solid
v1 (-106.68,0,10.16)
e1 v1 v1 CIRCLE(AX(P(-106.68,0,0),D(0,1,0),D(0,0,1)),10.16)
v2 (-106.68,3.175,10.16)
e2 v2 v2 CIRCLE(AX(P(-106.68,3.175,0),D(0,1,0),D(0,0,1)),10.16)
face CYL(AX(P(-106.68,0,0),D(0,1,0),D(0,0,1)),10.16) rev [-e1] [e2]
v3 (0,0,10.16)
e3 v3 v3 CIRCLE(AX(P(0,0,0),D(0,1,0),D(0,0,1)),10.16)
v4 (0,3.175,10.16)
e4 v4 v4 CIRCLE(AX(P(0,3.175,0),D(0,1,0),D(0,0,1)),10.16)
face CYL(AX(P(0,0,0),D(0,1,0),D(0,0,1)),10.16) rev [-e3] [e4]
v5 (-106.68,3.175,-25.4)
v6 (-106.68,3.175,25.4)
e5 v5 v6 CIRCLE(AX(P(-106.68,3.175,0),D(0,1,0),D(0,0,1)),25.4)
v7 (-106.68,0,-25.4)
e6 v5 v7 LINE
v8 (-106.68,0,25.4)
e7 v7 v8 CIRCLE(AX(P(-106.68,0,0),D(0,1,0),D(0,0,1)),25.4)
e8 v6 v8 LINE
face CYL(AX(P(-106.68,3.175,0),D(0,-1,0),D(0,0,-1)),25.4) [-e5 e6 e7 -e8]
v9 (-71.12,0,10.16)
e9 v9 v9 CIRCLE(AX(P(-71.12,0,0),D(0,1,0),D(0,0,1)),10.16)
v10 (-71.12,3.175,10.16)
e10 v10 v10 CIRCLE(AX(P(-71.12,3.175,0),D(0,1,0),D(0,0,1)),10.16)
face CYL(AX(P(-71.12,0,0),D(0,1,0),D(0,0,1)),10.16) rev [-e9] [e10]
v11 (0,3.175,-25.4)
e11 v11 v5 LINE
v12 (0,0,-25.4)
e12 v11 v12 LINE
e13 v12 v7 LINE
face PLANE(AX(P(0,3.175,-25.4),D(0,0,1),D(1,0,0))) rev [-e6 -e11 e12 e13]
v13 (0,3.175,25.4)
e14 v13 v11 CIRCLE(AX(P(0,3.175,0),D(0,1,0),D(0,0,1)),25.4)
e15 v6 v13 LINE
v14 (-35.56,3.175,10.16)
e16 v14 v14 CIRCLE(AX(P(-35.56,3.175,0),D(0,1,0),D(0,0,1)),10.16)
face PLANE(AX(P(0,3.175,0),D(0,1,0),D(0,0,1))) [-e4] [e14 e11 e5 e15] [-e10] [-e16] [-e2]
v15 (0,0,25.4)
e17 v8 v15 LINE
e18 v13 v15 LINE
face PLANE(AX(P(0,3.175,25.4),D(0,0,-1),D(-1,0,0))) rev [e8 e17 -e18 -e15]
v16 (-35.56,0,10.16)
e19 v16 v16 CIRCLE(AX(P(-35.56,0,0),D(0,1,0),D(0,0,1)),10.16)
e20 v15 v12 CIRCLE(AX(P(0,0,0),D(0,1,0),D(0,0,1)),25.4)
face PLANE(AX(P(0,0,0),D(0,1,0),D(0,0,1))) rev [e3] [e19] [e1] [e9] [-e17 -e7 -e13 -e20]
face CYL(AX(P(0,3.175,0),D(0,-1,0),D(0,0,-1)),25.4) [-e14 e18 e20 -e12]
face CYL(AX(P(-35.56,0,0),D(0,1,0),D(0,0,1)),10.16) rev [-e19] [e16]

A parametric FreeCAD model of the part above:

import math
import FreeCAD as App
import Part
import Sketcher
Q = App.Units.Quantity

doc = App.newDocument("Part")
body = doc.addObject("PartDesign::Body", "Body")

# Sketch on XZ plane
sketch1 = doc.addObject("Sketcher::SketchObject", "Sketch")
body.addObject(sketch1)
sketch1.AttachmentSupport = (doc.XZ_Plane, [""])
sketch1.MapMode = "FlatFace"
sketch1.addGeometry(Part.LineSegment(App.Vector(0, -25, 0), App.Vector(-107, -25, 0)), False)
sketch1.addGeometry(Part.ArcOfCircle(Part.Circle(App.Vector(-107, 0, 0), App.Vector(0, 0, 1), 25), math.radians(90), math.radians(270)), False)
sketch1.addGeometry(Part.LineSegment(App.Vector(-107, 25, 0), App.Vector(0, 25, 0)), False)
sketch1.addGeometry(Part.ArcOfCircle(Part.Circle(App.Vector(0, 0, 0), App.Vector(0, 0, 1), 25), math.radians(-90), math.radians(90)), False)
sketch1.addConstraint(Sketcher.Constraint("Tangent", 0, 2, 1, 2))
sketch1.addConstraint(Sketcher.Constraint("Tangent", 1, 1, 2, 1))
sketch1.addConstraint(Sketcher.Constraint("Tangent", 2, 2, 3, 2))
sketch1.addConstraint(Sketcher.Constraint("Tangent", 3, 1, 0, 1))
sketch1.addConstraint(Sketcher.Constraint("Horizontal", 0))
sketch1.addConstraint(Sketcher.Constraint("Horizontal", 2))
sketch1.addConstraint(Sketcher.Constraint("Coincident", 3, 3, -1, 1))
sketch1.addConstraint(Sketcher.Constraint("Radius", 1, Q("1 in")))
sketch1.addConstraint(Sketcher.Constraint("DistanceX", 0, 2, 0, 1, Q("4.2 in")))
pad1 = doc.addObject("PartDesign::Pad", "Pad")
body.addObject(pad1)
pad1.Profile = sketch1
pad1.Length = Q("0.125 in")
pad1.Reversed = True

# Sketch on XZ plane
sketch2 = doc.addObject("Sketcher::SketchObject", "Sketch001")
body.addObject(sketch2)
sketch2.AttachmentSupport = (doc.XZ_Plane, [""])
sketch2.MapMode = "FlatFace"
sketch2.AttachmentOffset = App.Placement(App.Vector(0, 0, -0.125 * 25.4), App.Rotation())
sketch2.addGeometry(Part.Circle(App.Vector(-107, 0, 0), App.Vector(0, 0, 1), 10), False)
sketch2.addConstraint(Sketcher.Constraint("PointOnObject", 0, 3, -1))
sketch2.addConstraint(Sketcher.Constraint("Diameter", 0, Q("0.8 in")))
sketch2.addConstraint(Sketcher.Constraint("DistanceX", 0, 3, -1, 1, Q("4.2 in")))
pocket1 = doc.addObject("PartDesign::Pocket", "Pocket")
body.addObject(pocket1)
pocket1.Profile = sketch2
pocket1.Type = "ThroughAll"
pocket1.Reversed = True
doc.recompute()

linearpattern = doc.addObject("PartDesign::LinearPattern", "LinearPattern")
body.addObject(linearpattern)
linearpattern.Originals = [pocket1]
linearpattern.Direction = (doc.X_Axis, [""])
linearpattern.Mode = "offset"
linearpattern.Offset = Q("1.4 in")
linearpattern.Occurrences = 4
body.Tip = linearpattern

doc.recompute()
